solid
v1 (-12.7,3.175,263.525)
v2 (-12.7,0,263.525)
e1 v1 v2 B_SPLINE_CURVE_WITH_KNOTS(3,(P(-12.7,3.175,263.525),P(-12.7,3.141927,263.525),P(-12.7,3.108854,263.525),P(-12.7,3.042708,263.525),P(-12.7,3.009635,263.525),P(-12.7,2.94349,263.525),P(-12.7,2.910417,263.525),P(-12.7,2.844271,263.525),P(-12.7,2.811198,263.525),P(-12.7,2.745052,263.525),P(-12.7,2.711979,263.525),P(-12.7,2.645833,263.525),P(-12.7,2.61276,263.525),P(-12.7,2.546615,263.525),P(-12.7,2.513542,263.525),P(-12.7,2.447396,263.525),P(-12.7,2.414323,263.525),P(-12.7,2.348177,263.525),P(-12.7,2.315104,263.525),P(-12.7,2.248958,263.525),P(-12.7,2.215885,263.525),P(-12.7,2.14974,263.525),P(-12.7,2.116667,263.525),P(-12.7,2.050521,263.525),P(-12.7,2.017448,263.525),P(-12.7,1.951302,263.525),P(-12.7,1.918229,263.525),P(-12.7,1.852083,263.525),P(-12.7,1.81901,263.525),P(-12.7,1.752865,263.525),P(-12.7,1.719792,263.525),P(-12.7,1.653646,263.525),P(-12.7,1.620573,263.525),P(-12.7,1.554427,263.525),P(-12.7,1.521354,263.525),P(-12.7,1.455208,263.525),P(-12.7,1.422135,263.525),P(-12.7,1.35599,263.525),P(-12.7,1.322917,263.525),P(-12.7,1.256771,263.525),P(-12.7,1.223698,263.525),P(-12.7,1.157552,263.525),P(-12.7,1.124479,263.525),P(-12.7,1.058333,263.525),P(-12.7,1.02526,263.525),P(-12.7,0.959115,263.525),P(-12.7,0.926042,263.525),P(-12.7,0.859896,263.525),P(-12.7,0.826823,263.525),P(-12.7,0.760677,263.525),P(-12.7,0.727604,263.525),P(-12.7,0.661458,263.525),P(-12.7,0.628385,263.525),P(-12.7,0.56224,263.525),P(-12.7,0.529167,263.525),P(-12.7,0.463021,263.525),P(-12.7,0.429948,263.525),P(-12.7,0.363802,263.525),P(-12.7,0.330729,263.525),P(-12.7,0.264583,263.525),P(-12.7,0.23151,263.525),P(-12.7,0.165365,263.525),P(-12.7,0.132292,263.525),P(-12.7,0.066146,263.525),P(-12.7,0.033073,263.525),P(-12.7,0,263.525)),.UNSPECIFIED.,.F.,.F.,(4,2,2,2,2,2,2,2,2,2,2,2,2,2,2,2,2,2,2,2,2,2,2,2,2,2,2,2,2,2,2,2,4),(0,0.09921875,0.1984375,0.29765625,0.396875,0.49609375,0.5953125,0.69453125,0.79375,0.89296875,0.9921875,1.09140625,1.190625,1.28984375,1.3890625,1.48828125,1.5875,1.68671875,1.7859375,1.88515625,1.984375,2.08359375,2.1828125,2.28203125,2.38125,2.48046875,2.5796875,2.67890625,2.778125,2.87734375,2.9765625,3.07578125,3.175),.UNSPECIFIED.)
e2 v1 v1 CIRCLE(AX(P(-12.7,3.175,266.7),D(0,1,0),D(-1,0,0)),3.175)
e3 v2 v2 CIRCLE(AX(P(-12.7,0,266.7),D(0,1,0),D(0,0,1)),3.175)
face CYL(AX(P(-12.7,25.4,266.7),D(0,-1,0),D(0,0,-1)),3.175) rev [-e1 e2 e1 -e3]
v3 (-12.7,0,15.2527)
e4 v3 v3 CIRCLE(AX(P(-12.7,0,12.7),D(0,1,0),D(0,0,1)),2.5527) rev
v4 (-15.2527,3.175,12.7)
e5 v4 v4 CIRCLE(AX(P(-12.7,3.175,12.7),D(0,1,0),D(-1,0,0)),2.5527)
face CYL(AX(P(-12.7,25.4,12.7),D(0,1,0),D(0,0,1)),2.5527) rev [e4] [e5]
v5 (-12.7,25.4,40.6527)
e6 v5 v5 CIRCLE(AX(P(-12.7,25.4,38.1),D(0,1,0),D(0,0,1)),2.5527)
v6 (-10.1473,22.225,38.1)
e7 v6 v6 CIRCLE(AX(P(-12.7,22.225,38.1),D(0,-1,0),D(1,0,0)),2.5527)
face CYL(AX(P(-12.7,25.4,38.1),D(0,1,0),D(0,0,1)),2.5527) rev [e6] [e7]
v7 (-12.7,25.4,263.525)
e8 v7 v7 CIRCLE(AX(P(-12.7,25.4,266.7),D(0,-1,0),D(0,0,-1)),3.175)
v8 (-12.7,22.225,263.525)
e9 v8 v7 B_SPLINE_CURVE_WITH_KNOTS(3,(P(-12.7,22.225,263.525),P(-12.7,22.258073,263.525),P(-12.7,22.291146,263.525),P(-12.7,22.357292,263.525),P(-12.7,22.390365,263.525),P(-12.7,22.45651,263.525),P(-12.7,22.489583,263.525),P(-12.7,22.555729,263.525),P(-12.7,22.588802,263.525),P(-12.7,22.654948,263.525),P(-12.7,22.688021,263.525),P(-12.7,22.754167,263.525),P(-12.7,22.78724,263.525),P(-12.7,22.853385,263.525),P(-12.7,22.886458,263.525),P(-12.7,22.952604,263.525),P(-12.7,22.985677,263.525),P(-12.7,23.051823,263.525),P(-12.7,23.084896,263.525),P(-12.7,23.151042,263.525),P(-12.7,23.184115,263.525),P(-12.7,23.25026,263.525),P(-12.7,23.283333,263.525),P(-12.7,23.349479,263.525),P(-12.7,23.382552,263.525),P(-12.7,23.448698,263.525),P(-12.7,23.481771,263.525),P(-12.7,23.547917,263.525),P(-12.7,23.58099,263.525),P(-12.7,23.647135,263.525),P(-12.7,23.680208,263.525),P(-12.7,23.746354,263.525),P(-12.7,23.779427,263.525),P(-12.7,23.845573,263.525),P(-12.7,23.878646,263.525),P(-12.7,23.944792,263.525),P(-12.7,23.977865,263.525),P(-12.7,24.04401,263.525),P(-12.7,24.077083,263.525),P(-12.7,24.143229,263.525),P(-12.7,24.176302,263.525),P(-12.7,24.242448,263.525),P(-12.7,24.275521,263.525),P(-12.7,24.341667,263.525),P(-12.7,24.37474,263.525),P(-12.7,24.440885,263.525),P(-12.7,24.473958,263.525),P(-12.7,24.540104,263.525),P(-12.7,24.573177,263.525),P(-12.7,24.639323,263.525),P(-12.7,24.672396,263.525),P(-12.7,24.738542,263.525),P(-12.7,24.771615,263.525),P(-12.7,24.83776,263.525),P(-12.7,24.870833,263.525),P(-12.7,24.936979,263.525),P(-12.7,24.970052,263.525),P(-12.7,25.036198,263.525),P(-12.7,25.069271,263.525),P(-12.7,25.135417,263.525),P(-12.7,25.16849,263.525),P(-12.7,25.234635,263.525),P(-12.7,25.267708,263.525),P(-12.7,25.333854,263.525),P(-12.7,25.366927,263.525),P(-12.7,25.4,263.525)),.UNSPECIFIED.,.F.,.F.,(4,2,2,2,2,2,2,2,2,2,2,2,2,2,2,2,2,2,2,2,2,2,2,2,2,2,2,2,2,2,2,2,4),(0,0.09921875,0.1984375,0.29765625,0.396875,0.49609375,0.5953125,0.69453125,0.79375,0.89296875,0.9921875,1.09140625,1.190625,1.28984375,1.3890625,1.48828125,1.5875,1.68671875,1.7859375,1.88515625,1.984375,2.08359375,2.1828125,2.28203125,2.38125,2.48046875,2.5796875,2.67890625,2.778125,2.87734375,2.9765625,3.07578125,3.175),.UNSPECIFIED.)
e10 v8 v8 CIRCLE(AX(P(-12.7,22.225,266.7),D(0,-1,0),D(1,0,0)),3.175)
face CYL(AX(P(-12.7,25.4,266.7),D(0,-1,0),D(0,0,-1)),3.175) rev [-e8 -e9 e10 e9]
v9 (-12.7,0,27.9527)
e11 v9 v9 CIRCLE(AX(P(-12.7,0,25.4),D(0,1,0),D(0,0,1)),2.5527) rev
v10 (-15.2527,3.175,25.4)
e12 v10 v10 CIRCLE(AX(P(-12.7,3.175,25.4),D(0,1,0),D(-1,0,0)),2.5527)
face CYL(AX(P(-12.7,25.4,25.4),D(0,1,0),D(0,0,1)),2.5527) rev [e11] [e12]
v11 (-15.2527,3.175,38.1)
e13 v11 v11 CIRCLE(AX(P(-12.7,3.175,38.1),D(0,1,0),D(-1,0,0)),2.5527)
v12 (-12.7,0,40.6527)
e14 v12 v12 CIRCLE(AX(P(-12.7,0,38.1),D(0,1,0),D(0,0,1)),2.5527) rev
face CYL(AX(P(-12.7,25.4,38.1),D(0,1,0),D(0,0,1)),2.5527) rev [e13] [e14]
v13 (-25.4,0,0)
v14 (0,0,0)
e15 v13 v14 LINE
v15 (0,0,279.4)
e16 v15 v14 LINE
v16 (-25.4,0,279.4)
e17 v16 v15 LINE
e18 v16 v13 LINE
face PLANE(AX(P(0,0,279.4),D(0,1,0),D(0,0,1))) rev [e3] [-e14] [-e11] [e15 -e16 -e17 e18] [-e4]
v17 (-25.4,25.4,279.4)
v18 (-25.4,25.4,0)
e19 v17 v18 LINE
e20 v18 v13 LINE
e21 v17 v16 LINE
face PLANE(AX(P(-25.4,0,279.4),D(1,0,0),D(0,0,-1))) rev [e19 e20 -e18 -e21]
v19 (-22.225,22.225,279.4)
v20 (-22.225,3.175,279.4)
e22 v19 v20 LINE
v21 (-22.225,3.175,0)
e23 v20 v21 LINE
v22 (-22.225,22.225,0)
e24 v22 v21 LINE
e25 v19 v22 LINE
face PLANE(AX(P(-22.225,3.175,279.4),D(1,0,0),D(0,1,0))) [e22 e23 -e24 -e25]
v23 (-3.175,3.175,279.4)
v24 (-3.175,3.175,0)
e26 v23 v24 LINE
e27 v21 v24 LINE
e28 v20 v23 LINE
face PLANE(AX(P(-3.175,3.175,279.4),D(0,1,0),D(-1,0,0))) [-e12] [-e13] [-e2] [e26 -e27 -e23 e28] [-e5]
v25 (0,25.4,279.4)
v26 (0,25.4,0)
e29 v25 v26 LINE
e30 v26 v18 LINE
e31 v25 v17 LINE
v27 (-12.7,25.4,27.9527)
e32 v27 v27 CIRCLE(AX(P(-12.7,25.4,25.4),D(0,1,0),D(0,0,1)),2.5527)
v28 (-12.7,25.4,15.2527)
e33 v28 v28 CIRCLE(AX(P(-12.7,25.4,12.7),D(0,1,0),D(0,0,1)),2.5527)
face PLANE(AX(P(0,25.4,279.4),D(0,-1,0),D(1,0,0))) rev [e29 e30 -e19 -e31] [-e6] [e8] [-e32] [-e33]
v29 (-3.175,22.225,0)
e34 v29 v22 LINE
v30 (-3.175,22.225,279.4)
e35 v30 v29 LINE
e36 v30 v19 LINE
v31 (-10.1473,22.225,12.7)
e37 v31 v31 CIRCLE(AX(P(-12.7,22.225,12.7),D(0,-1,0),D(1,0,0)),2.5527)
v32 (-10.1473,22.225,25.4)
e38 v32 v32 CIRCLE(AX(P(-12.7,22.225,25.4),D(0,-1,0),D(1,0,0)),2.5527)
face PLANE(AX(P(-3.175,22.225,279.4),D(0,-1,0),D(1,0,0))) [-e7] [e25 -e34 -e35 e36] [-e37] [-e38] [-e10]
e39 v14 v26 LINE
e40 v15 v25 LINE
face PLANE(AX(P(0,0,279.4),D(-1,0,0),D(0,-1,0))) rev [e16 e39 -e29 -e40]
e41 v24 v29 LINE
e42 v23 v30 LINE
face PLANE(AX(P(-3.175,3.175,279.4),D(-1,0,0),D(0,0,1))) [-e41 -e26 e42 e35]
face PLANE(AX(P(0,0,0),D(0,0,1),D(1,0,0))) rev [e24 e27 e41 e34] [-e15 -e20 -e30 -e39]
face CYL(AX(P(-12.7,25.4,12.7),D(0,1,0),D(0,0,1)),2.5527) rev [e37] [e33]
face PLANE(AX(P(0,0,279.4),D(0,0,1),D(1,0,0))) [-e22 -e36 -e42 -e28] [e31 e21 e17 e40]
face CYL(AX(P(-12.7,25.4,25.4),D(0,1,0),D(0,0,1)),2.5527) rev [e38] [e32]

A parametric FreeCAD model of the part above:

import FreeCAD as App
import Part
import Sketcher
Q = App.Units.Quantity

doc = App.newDocument("Part")
params = doc.addObject("Spreadsheet::Sheet", "Params")
for row, (alias, value) in enumerate([
    ("sketch1_width", "1 in"),
    ("sketch1_width2", "0.75 in"),
    ("pad1_length", "11 in"),
    ("sketch2_diameter", "0.25 in"),
    ("sketch3_diameter", "0.201 in"),
    ("hole_diameter", "0.201 in"),
], start=1):
    params.set(f"A{row}", alias)
    params.set(f"B{row}", "=" + value)
    params.setAlias(f"B{row}", alias)

body = doc.addObject("PartDesign::Body", "Body")

# Sketch on XY plane
sketch1 = body.newObject("Sketcher::SketchObject", "Sketch")
sketch1.AttachmentSupport = (doc.getObject("XY_Plane"), [""])
sketch1.MapMode = "FlatFace"
sketch1.addGeometry([
    Part.LineSegment(App.Vector(-25, 25, 0), App.Vector(-25, 0, 0)),  # 0
    Part.LineSegment(App.Vector(-25, 0, 0), App.Vector(0, 0, 0)),  # 1
    Part.LineSegment(App.Vector(0, 0, 0), App.Vector(0, 25, 0)),  # 2
    Part.LineSegment(App.Vector(0, 25, 0), App.Vector(-25, 25, 0)),  # 3
    Part.LineSegment(App.Vector(-3, 3, 0), App.Vector(-22, 3, 0)),  # 4
    Part.LineSegment(App.Vector(-22, 3, 0), App.Vector(-22, 22, 0)),  # 5
    Part.LineSegment(App.Vector(-22, 22, 0), App.Vector(-3, 22, 0)),  # 6
    Part.LineSegment(App.Vector(-3, 22, 0), App.Vector(-3, 3, 0)),  # 7
], False)
sketch1.addConstraint([
    Sketcher.Constraint("Coincident", 0, 2, 1, 1),
    Sketcher.Constraint("Coincident", 1, 2, 2, 1),
    Sketcher.Constraint("Coincident", 2, 2, 3, 1),
    Sketcher.Constraint("Coincident", 3, 2, 0, 1),
    Sketcher.Constraint("Coincident", 4, 2, 5, 1),
    Sketcher.Constraint("Coincident", 5, 2, 6, 1),
    Sketcher.Constraint("Coincident", 6, 2, 7, 1),
    Sketcher.Constraint("Coincident", 7, 2, 4, 1),
    Sketcher.Constraint("Vertical", 0),
    Sketcher.Constraint("Horizontal", 1),
    Sketcher.Constraint("Vertical", 2),
    Sketcher.Constraint("Horizontal", 3),
    Sketcher.Constraint("Horizontal", 4),
    Sketcher.Constraint("Vertical", 5),
    Sketcher.Constraint("Horizontal", 6),
    Sketcher.Constraint("Vertical", 7),
    Sketcher.Constraint("Coincident", 1, 2, -1, 1),
    Sketcher.Constraint("Equal", 3, 0),
    Sketcher.Constraint("Equal", 6, 5),
    Sketcher.Constraint("DistanceX", 1, 1, 1, 2, Q("1 in")),
    Sketcher.Constraint("DistanceX", 4, 2, 4, 1, Q("0.75 in")),
    Sketcher.Constraint("DistanceX", 4, 2, -1, 1, Q("0.875 in")),
    Sketcher.Constraint("DistanceY", -1, 1, 4, 2, Q("0.125 in")),
])
sketch1.setExpression("Constraints[19]", "Params.sketch1_width")
sketch1.setExpression("Constraints[20]", "Params.sketch1_width2")
pad1 = body.newObject("PartDesign::Pad", "Pad")
pad1.Profile = sketch1
pad1.setExpression("Length", "Params.pad1_length")

# Sketch on XZ plane
sketch2 = body.newObject("Sketcher::SketchObject", "Sketch001")
sketch2.AttachmentSupport = (doc.getObject("XZ_Plane"), [""])
sketch2.MapMode = "FlatFace"
sketch2.addGeometry(Part.Circle(App.Vector(-12.7, 266.7, 0), App.Vector(0, 0, 1), 3.2), False)
sketch2.addConstraint([
    Sketcher.Constraint("Diameter", 0, Q("0.25 in")),
    Sketcher.Constraint("DistanceX", 0, 3, -1, 1, Q("0.5 in")),
    Sketcher.Constraint("DistanceY", -1, 1, 0, 3, Q("10.5 in")),
])
sketch2.setExpression("Constraints[0]", "Params.sketch2_diameter")
pocket1 = body.newObject("PartDesign::Pocket", "Pocket")
pocket1.Profile = sketch2
pocket1.Type = "ThroughAll"
pocket1.Midplane = True

# Sketch on XZ plane
sketch3 = body.newObject("Sketcher::SketchObject", "Sketch002")
sketch3.AttachmentSupport = (doc.getObject("XZ_Plane"), [""])
sketch3.MapMode = "FlatFace"
sketch3.AttachmentOffset = App.Placement(App.Vector(0, 0, -1 * 25.4), App.Rotation())
sketch3.addGeometry([
    Part.Circle(App.Vector(-12.7, 38.1, 0), App.Vector(0, 0, 1), 2.6),
    Part.Circle(App.Vector(-12.7, 25.4, 0), App.Vector(0, 0, 1), 2.6),
    Part.Circle(App.Vector(-12.7, 12.7, 0), App.Vector(0, 0, 1), 2.6),
], False)
sketch3.addConstraint([
    Sketcher.Constraint("Equal", 0, 1),
    Sketcher.Constraint("Equal", 1, 2),
    Sketcher.Constraint("Vertical", 0, 3, 1, 3),
    Sketcher.Constraint("Vertical", 1, 3, 2, 3),
    Sketcher.Constraint("Diameter", 0, Q("0.201 in")),
    Sketcher.Constraint("DistanceY", -1, 1, 1, 3, Q("1 in")),
    Sketcher.Constraint("DistanceY", 2, 3, 0, 3, Q("1 in")),
    Sketcher.Constraint("DistanceX", 0, 3, -1, 1, Q("0.5 in")),
    Sketcher.Constraint("DistanceY", -1, 1, 0, 3, Q("1.5 in")),
])
sketch3.setExpression("Constraints[4]", "Params.sketch3_diameter")
doc.recompute()
hole = body.newObject("PartDesign::Hole", "Hole")
hole.Profile = sketch3
hole.ThreadType = "None"
hole.setExpression("Diameter", "Params.hole_diameter")
hole.DepthType = "ThroughAll"
hole.Reversed = True

doc.recompute()
